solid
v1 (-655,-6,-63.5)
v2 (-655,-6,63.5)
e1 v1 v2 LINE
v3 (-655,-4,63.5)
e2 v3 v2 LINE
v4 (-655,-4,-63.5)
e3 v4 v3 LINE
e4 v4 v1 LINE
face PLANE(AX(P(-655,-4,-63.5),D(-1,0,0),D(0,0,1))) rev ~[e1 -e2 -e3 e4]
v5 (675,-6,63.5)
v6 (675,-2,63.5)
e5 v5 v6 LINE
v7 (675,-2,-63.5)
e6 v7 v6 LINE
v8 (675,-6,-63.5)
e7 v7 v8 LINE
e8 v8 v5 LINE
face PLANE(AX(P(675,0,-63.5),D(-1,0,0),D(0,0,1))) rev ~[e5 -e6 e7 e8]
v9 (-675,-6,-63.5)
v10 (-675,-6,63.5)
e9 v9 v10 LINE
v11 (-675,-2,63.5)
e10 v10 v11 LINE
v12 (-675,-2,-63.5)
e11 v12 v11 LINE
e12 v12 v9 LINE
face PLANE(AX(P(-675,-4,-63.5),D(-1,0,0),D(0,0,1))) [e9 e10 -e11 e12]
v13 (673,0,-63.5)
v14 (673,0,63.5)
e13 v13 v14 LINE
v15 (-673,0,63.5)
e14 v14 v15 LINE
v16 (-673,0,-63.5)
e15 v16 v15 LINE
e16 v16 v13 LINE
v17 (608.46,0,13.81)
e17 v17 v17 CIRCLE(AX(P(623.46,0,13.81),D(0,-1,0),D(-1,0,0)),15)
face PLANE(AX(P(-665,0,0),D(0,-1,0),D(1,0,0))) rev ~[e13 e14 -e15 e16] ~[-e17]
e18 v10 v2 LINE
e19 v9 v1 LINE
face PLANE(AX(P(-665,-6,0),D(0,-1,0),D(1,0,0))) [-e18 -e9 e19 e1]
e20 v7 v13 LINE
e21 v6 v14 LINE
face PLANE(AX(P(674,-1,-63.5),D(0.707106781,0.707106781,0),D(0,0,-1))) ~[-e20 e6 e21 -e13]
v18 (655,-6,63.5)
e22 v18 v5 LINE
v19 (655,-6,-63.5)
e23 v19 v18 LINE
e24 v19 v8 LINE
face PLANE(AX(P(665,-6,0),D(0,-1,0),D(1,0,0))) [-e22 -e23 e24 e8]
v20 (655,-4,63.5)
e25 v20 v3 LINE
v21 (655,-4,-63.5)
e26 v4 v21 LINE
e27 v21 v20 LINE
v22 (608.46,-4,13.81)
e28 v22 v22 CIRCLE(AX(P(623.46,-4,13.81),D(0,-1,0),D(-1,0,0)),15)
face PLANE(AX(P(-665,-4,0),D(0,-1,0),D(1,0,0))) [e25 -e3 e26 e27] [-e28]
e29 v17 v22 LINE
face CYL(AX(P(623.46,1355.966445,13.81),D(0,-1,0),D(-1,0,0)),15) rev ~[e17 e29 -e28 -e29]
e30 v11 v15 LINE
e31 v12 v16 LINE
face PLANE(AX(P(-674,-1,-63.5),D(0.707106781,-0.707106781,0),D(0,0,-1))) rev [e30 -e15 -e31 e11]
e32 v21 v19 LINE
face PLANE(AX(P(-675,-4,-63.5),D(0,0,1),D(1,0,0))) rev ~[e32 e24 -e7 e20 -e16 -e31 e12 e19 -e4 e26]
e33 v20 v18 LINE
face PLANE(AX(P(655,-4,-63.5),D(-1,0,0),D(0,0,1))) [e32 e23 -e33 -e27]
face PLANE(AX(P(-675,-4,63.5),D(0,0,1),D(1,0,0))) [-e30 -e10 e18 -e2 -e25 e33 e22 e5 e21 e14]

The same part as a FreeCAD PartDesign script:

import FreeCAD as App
import Part
import Sketcher

V = App.Vector


def edges_at(feature, points):
    """Names of the edges that pass closest to the given points."""
    edges = feature.Shape.Edges
    near = lambda p: min(range(len(edges)), key=lambda i: edges[i].distToShape(Part.Vertex(*p))[0])
    return sorted({f"Edge{near(p) + 1}" for p in points})

doc = App.newDocument("Part")
body = doc.addObject("PartDesign::Body", "Body")

# Sketch on XZ plane
sketch1 = body.newObject("Sketcher::SketchObject", "Sketch")
sketch1.AttachmentSupport = (doc.getObject("XZ_Plane"), [""])
sketch1.MapMode = "FlatFace"
sketch1.addGeometry(Part.LineSegment(V(-675, 64, 0), V(-675, -64, 0)), False)
sketch1.addGeometry(Part.LineSegment(V(-675, -64, 0), V(675, -64, 0)), False)
sketch1.addGeometry(Part.LineSegment(V(675, -64, 0), V(675, 64, 0)), False)
sketch1.addGeometry(Part.LineSegment(V(675, 64, 0), V(-675, 64, 0)), False)
sketch1.addConstraint(Sketcher.Constraint("Coincident", 0, 2, 1, 1))
sketch1.addConstraint(Sketcher.Constraint("Coincident", 1, 2, 2, 1))
sketch1.addConstraint(Sketcher.Constraint("Coincident", 2, 2, 3, 1))
sketch1.addConstraint(Sketcher.Constraint("Coincident", 3, 2, 0, 1))
sketch1.addConstraint(Sketcher.Constraint("Vertical", 0))
sketch1.addConstraint(Sketcher.Constraint("Horizontal", 1))
sketch1.addConstraint(Sketcher.Constraint("Vertical", 2))
sketch1.addConstraint(Sketcher.Constraint("Horizontal", 3))
sketch1.addConstraint(Sketcher.Constraint("Symmetric", 0, 2, 2, 2, -1, 1))
sketch1.addConstraint(Sketcher.Constraint("DistanceX", 1, 1, 1, 2, 1350.0))
sketch1.addConstraint(Sketcher.Constraint("DistanceY", 0, 2, 0, 1, 127.0))
pad1 = body.newObject("PartDesign::Pad", "Pad")
pad1.Profile = sketch1
pad1.Length = 4

# Sketch on XZ plane
sketch2 = body.newObject("Sketcher::SketchObject", "Sketch001")
sketch2.AttachmentSupport = (doc.getObject("XZ_Plane"), [""])
sketch2.MapMode = "FlatFace"
sketch2.addGeometry(Part.Circle(V(623, 14, 0), V(0, 0, 1), 15), False)
sketch2.addConstraint(Sketcher.Constraint("Diameter", 0, 30.0))
sketch2.addConstraint(Sketcher.Constraint("DistanceX", -1, 1, 0, 3, 623.46))
sketch2.addConstraint(Sketcher.Constraint("DistanceY", -1, 1, 0, 3, 13.81))
doc.recompute()
hole = body.newObject("PartDesign::Hole", "Hole")
hole.Profile = sketch2
hole.ThreadType = "None"
hole.Diameter = 30
hole.DepthType = "ThroughAll"
hole.Reversed = True

# Sketch on XZ plane
sketch3 = body.newObject("Sketcher::SketchObject", "Sketch002")
sketch3.AttachmentSupport = (doc.getObject("XZ_Plane"), [""])
sketch3.MapMode = "FlatFace"
sketch3.AttachmentOffset = App.Placement(V(0, 0, 4), App.Rotation())
sketch3.addGeometry(Part.LineSegment(V(-675, 64, 0), V(-675, -64, 0)), False)
sketch3.addGeometry(Part.LineSegment(V(-675, -64, 0), V(-655, -64, 0)), False)
sketch3.addGeometry(Part.LineSegment(V(-655, -64, 0), V(-655, 64, 0)), False)
sketch3.addGeometry(Part.LineSegment(V(-655, 64, 0), V(-675, 64, 0)), False)
sketch3.addGeometry(Part.LineSegment(V(655, 64, 0), V(655, -64, 0)), False)
sketch3.addGeometry(Part.LineSegment(V(655, -64, 0), V(675, -64, 0)), False)
sketch3.addGeometry(Part.LineSegment(V(675, -64, 0), V(675, 64, 0)), False)
sketch3.addGeometry(Part.LineSegment(V(675, 64, 0), V(655, 64, 0)), False)
sketch3.addConstraint(Sketcher.Constraint("Coincident", 0, 2, 1, 1))
sketch3.addConstraint(Sketcher.Constraint("Coincident", 1, 2, 2, 1))
sketch3.addConstraint(Sketcher.Constraint("Coincident", 2, 2, 3, 1))
sketch3.addConstraint(Sketcher.Constraint("Coincident", 3, 2, 0, 1))
sketch3.addConstraint(Sketcher.Constraint("Coincident", 4, 2, 5, 1))
sketch3.addConstraint(Sketcher.Constraint("Coincident", 5, 2, 6, 1))
sketch3.addConstraint(Sketcher.Constraint("Coincident", 6, 2, 7, 1))
sketch3.addConstraint(Sketcher.Constraint("Coincident", 7, 2, 4, 1))
sketch3.addConstraint(Sketcher.Constraint("Vertical", 0))
sketch3.addConstraint(Sketcher.Constraint("Horizontal", 1))
sketch3.addConstraint(Sketcher.Constraint("Vertical", 2))
sketch3.addConstraint(Sketcher.Constraint("Horizontal", 3))
sketch3.addConstraint(Sketcher.Constraint("Vertical", 4))
sketch3.addConstraint(Sketcher.Constraint("Horizontal", 5))
sketch3.addConstraint(Sketcher.Constraint("Vertical", 6))
sketch3.addConstraint(Sketcher.Constraint("Horizontal", 7))
sketch3.addConstraint(Sketcher.Constraint("Symmetric", 2, 2, 4, 2, -1, 1))
sketch3.addConstraint(Sketcher.Constraint("Symmetric", 0, 2, 6, 2, -1, 1))
sketch3.addConstraint(Sketcher.Constraint("Horizontal", 1, 2, 4, 2))
sketch3.addConstraint(Sketcher.Constraint("DistanceX", 1, 1, 1, 2, 20.0))
sketch3.addConstraint(Sketcher.Constraint("DistanceY", 0, 2, 0, 1, 127.0))
sketch3.addConstraint(Sketcher.Constraint("DistanceX", 0, 2, -1, 1, 675.0))
pad2 = body.newObject("PartDesign::Pad", "Pad001")
pad2.Profile = sketch3
pad2.Length = 2
doc.recompute()

chamfer = body.newObject("PartDesign::Chamfer", "Chamfer")
chamfer.Base = (pad2, edges_at(pad2, [(675, 0, 0), (-675, 0, 0)]))
chamfer.Size = 2

doc.recompute()
